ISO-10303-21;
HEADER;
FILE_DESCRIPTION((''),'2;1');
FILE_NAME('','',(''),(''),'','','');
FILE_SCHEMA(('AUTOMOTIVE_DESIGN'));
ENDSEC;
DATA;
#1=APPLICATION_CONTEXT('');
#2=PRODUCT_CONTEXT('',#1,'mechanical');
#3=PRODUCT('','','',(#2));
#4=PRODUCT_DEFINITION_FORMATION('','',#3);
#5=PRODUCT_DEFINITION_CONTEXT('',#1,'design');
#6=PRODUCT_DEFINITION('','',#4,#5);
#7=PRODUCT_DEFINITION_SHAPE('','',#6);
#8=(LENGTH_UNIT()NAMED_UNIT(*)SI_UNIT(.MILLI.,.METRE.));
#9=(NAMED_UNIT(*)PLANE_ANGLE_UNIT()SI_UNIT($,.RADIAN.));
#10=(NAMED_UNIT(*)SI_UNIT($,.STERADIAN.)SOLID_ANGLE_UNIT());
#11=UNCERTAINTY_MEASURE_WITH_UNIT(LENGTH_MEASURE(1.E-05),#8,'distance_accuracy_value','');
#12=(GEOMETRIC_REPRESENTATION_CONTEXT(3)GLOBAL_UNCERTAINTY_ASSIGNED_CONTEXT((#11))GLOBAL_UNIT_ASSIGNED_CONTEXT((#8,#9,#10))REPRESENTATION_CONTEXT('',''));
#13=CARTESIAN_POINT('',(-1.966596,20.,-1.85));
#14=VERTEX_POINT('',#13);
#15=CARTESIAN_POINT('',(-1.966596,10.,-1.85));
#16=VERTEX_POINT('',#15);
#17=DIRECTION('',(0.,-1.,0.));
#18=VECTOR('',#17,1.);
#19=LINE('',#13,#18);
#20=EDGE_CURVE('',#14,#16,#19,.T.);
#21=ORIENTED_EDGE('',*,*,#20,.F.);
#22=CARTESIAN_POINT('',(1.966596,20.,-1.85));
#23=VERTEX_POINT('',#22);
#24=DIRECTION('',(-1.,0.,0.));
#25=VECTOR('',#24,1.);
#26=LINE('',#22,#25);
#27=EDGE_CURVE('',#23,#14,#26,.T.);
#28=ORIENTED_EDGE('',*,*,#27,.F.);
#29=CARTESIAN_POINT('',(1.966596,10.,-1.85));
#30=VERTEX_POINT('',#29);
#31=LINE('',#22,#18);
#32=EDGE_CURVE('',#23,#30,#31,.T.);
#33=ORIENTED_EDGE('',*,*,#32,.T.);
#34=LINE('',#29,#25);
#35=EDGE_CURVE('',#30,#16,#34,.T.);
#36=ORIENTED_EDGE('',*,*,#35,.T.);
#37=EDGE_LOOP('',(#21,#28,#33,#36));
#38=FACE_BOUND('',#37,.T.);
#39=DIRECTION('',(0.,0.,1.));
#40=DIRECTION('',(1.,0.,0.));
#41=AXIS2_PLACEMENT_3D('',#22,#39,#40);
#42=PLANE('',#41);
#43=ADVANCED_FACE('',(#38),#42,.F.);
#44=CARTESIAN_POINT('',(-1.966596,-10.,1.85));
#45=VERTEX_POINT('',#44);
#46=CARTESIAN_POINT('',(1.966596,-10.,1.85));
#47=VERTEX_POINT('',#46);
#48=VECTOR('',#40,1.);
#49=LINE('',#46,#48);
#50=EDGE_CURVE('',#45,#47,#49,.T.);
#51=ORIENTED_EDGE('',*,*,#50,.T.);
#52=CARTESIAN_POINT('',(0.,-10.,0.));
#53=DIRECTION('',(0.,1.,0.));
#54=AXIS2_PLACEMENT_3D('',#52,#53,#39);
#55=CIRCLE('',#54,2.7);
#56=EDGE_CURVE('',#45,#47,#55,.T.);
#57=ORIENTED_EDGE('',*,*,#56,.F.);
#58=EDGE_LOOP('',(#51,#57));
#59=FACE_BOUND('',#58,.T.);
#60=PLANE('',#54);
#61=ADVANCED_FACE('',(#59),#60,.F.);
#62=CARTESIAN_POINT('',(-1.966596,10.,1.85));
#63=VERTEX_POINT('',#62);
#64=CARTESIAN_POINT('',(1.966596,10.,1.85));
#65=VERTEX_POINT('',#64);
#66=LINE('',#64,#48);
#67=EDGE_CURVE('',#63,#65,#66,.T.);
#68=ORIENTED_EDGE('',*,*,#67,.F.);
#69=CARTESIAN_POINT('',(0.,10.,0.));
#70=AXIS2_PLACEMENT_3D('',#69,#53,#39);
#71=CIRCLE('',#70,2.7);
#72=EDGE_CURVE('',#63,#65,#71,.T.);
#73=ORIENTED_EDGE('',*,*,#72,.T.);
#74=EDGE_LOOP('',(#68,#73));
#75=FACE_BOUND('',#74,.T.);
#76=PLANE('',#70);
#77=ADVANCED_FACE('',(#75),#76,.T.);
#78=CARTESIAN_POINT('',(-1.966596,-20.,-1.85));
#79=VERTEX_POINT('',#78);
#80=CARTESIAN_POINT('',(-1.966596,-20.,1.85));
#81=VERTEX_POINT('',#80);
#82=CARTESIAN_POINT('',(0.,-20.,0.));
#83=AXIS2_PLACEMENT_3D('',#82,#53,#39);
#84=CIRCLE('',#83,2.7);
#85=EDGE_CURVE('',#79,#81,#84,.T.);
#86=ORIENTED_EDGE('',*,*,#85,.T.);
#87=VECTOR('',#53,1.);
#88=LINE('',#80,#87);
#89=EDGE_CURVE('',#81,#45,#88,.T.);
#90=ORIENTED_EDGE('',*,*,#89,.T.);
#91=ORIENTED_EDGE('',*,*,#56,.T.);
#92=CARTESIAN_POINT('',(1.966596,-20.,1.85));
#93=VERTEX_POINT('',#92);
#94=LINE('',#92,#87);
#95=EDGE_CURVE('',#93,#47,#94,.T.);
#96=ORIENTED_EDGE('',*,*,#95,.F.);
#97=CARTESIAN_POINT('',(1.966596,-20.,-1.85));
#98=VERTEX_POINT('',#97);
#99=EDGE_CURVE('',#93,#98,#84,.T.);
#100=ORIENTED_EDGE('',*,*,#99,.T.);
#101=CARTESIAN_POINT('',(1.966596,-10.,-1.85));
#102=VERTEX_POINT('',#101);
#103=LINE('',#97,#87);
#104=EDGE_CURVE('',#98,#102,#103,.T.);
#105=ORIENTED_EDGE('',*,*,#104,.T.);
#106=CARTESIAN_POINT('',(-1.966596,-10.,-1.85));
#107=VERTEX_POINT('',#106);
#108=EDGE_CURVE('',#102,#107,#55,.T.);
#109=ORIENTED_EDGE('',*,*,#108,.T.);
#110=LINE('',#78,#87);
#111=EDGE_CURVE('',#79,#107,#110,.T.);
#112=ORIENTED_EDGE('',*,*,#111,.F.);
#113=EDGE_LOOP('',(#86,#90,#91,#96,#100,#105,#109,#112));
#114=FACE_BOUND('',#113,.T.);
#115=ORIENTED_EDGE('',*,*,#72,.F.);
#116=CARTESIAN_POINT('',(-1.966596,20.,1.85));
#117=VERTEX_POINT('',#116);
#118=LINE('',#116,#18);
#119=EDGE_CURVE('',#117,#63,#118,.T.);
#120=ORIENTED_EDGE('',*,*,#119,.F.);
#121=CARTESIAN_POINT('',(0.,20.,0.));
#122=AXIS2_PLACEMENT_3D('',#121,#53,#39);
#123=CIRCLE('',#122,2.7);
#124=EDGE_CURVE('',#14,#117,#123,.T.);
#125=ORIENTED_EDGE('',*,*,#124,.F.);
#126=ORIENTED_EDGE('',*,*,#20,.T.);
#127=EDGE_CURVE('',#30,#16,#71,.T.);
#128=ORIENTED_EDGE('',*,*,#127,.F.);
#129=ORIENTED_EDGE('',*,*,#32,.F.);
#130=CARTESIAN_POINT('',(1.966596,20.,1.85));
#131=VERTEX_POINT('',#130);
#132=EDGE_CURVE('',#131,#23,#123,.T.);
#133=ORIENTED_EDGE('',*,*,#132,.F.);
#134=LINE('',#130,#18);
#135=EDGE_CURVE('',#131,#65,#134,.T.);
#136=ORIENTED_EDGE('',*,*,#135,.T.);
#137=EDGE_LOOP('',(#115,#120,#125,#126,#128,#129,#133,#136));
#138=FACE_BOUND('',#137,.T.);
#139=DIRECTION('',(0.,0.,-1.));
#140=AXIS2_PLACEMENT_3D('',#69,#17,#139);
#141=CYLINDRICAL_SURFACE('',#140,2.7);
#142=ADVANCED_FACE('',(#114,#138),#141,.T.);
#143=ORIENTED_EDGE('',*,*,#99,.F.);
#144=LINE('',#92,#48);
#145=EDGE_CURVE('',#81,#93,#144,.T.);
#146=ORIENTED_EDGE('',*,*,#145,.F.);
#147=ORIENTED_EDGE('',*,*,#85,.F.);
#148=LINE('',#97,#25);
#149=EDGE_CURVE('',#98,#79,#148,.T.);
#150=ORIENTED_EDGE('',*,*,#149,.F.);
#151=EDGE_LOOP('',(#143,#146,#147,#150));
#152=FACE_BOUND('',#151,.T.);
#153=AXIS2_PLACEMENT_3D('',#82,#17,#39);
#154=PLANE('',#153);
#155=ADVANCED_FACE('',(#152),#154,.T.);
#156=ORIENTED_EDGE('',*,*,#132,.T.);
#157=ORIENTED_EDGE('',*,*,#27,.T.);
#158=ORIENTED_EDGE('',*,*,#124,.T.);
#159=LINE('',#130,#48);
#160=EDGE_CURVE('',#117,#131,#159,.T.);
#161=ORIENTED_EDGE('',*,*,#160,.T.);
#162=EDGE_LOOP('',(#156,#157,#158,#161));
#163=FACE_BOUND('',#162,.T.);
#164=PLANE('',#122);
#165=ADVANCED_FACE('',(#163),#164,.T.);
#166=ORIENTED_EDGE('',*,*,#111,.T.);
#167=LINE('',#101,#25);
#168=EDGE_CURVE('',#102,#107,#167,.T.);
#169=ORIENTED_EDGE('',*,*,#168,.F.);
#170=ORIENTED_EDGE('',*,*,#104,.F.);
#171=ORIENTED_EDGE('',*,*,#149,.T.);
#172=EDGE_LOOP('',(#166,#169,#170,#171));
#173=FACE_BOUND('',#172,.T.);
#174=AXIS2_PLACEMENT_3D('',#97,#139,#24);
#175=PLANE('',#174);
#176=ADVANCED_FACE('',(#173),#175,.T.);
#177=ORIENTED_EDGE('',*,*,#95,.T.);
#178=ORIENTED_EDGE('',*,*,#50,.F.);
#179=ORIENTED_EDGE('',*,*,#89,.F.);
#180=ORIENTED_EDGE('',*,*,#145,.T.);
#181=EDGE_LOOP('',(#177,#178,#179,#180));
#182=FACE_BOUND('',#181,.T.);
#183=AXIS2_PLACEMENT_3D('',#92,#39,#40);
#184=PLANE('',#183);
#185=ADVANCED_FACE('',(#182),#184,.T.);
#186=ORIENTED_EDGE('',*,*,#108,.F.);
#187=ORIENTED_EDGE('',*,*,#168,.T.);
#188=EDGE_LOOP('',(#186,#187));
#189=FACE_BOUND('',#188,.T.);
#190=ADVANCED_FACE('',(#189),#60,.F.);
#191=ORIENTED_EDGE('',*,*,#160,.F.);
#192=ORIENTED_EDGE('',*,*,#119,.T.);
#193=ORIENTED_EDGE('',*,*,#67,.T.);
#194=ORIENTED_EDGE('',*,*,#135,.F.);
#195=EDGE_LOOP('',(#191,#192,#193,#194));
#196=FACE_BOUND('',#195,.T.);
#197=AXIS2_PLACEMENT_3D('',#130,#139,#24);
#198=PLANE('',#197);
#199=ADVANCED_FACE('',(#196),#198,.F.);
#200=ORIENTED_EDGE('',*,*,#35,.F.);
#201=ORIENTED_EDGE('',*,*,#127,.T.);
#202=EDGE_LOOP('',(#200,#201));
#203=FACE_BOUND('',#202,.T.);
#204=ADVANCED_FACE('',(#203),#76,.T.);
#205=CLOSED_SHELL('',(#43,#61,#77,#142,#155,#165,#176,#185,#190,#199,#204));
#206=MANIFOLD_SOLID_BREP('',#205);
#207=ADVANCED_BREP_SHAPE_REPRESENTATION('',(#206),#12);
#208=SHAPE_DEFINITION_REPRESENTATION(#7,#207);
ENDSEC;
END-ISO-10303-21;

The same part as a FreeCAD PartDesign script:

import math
import FreeCAD as App
import Part
import Sketcher

V = App.Vector

doc = App.newDocument("Part")
body = doc.addObject("PartDesign::Body", "Body")

# Sketch on XZ plane
sketch1 = doc.addObject("Sketcher::SketchObject", "Sketch")
body.addObject(sketch1)
sketch1.AttachmentSupport = (doc.XZ_Plane, [""])
sketch1.MapMode = "FlatFace"
sketch1.addGeometry(Part.Circle(V(0, 0, 0), V(0, 0, 1), 2.7), False)
sketch1.addConstraint([
    Sketcher.Constraint("Coincident", 0, 3, -1, 1),
    Sketcher.Constraint("Diameter", 0, 5.4),
])
pad1 = doc.addObject("PartDesign::Pad", "Pad")
body.addObject(pad1)
pad1.Profile = sketch1
pad1.Length = 20
pad1.Midplane = True

# Sketch on XZ plane
sketch2 = doc.addObject("Sketcher::SketchObject", "Sketch001")
body.addObject(sketch2)
sketch2.AttachmentSupport = (doc.XZ_Plane, [""])
sketch2.MapMode = "FlatFace"
sketch2.AttachmentOffset = App.Placement(V(0, 0, -10), App.Rotation())
sketch2.addGeometry([
    Part.LineSegment(V(2, -1.9, 0), V(-2, -1.9, 0)),
    Part.ArcOfCircle(Part.Circle(V(0, 0, 0), V(0, 0, 1), 2.7), math.radians(137), math.radians(223)),
    Part.LineSegment(V(-2, 1.9, 0), V(2, 1.9, 0)),
    Part.ArcOfCircle(Part.Circle(V(0, 0, 0), V(0, 0, 1), 2.7), math.radians(-43), math.radians(43)),
], False)
sketch2.addConstraint([
    Sketcher.Constraint("Coincident", 0, 2, 1, 2),
    Sketcher.Constraint("Coincident", 1, 1, 2, 1),
    Sketcher.Constraint("Coincident", 2, 2, 3, 2),
    Sketcher.Constraint("Coincident", 3, 1, 0, 1),
    Sketcher.Constraint("Horizontal", 0),
    Sketcher.Constraint("Horizontal", 2),
    Sketcher.Constraint("Coincident", 1, 3, -1, 1),
    Sketcher.Constraint("Coincident", 3, 3, -1, 1),
    Sketcher.Constraint("Equal", 1, 3),
    Sketcher.Constraint("Vertical", 0, 2, 1, 1),
    Sketcher.Constraint("Radius", 1, 2.7),
    Sketcher.Constraint("DistanceY", 0, 2, 1, 1, 3.7),
])
pad2 = doc.addObject("PartDesign::Pad", "Pad001")
body.addObject(pad2)
pad2.Profile = sketch2
pad2.Length = 10
pad2.Reversed = True
doc.recompute()

mirrored = doc.addObject("PartDesign::Mirrored", "Mirrored")
body.addObject(mirrored)
mirrored.Originals = [pad2]
mirrored.MirrorPlane = (doc.XZ_Plane, [""])
body.Tip = mirrored

doc.recompute()
